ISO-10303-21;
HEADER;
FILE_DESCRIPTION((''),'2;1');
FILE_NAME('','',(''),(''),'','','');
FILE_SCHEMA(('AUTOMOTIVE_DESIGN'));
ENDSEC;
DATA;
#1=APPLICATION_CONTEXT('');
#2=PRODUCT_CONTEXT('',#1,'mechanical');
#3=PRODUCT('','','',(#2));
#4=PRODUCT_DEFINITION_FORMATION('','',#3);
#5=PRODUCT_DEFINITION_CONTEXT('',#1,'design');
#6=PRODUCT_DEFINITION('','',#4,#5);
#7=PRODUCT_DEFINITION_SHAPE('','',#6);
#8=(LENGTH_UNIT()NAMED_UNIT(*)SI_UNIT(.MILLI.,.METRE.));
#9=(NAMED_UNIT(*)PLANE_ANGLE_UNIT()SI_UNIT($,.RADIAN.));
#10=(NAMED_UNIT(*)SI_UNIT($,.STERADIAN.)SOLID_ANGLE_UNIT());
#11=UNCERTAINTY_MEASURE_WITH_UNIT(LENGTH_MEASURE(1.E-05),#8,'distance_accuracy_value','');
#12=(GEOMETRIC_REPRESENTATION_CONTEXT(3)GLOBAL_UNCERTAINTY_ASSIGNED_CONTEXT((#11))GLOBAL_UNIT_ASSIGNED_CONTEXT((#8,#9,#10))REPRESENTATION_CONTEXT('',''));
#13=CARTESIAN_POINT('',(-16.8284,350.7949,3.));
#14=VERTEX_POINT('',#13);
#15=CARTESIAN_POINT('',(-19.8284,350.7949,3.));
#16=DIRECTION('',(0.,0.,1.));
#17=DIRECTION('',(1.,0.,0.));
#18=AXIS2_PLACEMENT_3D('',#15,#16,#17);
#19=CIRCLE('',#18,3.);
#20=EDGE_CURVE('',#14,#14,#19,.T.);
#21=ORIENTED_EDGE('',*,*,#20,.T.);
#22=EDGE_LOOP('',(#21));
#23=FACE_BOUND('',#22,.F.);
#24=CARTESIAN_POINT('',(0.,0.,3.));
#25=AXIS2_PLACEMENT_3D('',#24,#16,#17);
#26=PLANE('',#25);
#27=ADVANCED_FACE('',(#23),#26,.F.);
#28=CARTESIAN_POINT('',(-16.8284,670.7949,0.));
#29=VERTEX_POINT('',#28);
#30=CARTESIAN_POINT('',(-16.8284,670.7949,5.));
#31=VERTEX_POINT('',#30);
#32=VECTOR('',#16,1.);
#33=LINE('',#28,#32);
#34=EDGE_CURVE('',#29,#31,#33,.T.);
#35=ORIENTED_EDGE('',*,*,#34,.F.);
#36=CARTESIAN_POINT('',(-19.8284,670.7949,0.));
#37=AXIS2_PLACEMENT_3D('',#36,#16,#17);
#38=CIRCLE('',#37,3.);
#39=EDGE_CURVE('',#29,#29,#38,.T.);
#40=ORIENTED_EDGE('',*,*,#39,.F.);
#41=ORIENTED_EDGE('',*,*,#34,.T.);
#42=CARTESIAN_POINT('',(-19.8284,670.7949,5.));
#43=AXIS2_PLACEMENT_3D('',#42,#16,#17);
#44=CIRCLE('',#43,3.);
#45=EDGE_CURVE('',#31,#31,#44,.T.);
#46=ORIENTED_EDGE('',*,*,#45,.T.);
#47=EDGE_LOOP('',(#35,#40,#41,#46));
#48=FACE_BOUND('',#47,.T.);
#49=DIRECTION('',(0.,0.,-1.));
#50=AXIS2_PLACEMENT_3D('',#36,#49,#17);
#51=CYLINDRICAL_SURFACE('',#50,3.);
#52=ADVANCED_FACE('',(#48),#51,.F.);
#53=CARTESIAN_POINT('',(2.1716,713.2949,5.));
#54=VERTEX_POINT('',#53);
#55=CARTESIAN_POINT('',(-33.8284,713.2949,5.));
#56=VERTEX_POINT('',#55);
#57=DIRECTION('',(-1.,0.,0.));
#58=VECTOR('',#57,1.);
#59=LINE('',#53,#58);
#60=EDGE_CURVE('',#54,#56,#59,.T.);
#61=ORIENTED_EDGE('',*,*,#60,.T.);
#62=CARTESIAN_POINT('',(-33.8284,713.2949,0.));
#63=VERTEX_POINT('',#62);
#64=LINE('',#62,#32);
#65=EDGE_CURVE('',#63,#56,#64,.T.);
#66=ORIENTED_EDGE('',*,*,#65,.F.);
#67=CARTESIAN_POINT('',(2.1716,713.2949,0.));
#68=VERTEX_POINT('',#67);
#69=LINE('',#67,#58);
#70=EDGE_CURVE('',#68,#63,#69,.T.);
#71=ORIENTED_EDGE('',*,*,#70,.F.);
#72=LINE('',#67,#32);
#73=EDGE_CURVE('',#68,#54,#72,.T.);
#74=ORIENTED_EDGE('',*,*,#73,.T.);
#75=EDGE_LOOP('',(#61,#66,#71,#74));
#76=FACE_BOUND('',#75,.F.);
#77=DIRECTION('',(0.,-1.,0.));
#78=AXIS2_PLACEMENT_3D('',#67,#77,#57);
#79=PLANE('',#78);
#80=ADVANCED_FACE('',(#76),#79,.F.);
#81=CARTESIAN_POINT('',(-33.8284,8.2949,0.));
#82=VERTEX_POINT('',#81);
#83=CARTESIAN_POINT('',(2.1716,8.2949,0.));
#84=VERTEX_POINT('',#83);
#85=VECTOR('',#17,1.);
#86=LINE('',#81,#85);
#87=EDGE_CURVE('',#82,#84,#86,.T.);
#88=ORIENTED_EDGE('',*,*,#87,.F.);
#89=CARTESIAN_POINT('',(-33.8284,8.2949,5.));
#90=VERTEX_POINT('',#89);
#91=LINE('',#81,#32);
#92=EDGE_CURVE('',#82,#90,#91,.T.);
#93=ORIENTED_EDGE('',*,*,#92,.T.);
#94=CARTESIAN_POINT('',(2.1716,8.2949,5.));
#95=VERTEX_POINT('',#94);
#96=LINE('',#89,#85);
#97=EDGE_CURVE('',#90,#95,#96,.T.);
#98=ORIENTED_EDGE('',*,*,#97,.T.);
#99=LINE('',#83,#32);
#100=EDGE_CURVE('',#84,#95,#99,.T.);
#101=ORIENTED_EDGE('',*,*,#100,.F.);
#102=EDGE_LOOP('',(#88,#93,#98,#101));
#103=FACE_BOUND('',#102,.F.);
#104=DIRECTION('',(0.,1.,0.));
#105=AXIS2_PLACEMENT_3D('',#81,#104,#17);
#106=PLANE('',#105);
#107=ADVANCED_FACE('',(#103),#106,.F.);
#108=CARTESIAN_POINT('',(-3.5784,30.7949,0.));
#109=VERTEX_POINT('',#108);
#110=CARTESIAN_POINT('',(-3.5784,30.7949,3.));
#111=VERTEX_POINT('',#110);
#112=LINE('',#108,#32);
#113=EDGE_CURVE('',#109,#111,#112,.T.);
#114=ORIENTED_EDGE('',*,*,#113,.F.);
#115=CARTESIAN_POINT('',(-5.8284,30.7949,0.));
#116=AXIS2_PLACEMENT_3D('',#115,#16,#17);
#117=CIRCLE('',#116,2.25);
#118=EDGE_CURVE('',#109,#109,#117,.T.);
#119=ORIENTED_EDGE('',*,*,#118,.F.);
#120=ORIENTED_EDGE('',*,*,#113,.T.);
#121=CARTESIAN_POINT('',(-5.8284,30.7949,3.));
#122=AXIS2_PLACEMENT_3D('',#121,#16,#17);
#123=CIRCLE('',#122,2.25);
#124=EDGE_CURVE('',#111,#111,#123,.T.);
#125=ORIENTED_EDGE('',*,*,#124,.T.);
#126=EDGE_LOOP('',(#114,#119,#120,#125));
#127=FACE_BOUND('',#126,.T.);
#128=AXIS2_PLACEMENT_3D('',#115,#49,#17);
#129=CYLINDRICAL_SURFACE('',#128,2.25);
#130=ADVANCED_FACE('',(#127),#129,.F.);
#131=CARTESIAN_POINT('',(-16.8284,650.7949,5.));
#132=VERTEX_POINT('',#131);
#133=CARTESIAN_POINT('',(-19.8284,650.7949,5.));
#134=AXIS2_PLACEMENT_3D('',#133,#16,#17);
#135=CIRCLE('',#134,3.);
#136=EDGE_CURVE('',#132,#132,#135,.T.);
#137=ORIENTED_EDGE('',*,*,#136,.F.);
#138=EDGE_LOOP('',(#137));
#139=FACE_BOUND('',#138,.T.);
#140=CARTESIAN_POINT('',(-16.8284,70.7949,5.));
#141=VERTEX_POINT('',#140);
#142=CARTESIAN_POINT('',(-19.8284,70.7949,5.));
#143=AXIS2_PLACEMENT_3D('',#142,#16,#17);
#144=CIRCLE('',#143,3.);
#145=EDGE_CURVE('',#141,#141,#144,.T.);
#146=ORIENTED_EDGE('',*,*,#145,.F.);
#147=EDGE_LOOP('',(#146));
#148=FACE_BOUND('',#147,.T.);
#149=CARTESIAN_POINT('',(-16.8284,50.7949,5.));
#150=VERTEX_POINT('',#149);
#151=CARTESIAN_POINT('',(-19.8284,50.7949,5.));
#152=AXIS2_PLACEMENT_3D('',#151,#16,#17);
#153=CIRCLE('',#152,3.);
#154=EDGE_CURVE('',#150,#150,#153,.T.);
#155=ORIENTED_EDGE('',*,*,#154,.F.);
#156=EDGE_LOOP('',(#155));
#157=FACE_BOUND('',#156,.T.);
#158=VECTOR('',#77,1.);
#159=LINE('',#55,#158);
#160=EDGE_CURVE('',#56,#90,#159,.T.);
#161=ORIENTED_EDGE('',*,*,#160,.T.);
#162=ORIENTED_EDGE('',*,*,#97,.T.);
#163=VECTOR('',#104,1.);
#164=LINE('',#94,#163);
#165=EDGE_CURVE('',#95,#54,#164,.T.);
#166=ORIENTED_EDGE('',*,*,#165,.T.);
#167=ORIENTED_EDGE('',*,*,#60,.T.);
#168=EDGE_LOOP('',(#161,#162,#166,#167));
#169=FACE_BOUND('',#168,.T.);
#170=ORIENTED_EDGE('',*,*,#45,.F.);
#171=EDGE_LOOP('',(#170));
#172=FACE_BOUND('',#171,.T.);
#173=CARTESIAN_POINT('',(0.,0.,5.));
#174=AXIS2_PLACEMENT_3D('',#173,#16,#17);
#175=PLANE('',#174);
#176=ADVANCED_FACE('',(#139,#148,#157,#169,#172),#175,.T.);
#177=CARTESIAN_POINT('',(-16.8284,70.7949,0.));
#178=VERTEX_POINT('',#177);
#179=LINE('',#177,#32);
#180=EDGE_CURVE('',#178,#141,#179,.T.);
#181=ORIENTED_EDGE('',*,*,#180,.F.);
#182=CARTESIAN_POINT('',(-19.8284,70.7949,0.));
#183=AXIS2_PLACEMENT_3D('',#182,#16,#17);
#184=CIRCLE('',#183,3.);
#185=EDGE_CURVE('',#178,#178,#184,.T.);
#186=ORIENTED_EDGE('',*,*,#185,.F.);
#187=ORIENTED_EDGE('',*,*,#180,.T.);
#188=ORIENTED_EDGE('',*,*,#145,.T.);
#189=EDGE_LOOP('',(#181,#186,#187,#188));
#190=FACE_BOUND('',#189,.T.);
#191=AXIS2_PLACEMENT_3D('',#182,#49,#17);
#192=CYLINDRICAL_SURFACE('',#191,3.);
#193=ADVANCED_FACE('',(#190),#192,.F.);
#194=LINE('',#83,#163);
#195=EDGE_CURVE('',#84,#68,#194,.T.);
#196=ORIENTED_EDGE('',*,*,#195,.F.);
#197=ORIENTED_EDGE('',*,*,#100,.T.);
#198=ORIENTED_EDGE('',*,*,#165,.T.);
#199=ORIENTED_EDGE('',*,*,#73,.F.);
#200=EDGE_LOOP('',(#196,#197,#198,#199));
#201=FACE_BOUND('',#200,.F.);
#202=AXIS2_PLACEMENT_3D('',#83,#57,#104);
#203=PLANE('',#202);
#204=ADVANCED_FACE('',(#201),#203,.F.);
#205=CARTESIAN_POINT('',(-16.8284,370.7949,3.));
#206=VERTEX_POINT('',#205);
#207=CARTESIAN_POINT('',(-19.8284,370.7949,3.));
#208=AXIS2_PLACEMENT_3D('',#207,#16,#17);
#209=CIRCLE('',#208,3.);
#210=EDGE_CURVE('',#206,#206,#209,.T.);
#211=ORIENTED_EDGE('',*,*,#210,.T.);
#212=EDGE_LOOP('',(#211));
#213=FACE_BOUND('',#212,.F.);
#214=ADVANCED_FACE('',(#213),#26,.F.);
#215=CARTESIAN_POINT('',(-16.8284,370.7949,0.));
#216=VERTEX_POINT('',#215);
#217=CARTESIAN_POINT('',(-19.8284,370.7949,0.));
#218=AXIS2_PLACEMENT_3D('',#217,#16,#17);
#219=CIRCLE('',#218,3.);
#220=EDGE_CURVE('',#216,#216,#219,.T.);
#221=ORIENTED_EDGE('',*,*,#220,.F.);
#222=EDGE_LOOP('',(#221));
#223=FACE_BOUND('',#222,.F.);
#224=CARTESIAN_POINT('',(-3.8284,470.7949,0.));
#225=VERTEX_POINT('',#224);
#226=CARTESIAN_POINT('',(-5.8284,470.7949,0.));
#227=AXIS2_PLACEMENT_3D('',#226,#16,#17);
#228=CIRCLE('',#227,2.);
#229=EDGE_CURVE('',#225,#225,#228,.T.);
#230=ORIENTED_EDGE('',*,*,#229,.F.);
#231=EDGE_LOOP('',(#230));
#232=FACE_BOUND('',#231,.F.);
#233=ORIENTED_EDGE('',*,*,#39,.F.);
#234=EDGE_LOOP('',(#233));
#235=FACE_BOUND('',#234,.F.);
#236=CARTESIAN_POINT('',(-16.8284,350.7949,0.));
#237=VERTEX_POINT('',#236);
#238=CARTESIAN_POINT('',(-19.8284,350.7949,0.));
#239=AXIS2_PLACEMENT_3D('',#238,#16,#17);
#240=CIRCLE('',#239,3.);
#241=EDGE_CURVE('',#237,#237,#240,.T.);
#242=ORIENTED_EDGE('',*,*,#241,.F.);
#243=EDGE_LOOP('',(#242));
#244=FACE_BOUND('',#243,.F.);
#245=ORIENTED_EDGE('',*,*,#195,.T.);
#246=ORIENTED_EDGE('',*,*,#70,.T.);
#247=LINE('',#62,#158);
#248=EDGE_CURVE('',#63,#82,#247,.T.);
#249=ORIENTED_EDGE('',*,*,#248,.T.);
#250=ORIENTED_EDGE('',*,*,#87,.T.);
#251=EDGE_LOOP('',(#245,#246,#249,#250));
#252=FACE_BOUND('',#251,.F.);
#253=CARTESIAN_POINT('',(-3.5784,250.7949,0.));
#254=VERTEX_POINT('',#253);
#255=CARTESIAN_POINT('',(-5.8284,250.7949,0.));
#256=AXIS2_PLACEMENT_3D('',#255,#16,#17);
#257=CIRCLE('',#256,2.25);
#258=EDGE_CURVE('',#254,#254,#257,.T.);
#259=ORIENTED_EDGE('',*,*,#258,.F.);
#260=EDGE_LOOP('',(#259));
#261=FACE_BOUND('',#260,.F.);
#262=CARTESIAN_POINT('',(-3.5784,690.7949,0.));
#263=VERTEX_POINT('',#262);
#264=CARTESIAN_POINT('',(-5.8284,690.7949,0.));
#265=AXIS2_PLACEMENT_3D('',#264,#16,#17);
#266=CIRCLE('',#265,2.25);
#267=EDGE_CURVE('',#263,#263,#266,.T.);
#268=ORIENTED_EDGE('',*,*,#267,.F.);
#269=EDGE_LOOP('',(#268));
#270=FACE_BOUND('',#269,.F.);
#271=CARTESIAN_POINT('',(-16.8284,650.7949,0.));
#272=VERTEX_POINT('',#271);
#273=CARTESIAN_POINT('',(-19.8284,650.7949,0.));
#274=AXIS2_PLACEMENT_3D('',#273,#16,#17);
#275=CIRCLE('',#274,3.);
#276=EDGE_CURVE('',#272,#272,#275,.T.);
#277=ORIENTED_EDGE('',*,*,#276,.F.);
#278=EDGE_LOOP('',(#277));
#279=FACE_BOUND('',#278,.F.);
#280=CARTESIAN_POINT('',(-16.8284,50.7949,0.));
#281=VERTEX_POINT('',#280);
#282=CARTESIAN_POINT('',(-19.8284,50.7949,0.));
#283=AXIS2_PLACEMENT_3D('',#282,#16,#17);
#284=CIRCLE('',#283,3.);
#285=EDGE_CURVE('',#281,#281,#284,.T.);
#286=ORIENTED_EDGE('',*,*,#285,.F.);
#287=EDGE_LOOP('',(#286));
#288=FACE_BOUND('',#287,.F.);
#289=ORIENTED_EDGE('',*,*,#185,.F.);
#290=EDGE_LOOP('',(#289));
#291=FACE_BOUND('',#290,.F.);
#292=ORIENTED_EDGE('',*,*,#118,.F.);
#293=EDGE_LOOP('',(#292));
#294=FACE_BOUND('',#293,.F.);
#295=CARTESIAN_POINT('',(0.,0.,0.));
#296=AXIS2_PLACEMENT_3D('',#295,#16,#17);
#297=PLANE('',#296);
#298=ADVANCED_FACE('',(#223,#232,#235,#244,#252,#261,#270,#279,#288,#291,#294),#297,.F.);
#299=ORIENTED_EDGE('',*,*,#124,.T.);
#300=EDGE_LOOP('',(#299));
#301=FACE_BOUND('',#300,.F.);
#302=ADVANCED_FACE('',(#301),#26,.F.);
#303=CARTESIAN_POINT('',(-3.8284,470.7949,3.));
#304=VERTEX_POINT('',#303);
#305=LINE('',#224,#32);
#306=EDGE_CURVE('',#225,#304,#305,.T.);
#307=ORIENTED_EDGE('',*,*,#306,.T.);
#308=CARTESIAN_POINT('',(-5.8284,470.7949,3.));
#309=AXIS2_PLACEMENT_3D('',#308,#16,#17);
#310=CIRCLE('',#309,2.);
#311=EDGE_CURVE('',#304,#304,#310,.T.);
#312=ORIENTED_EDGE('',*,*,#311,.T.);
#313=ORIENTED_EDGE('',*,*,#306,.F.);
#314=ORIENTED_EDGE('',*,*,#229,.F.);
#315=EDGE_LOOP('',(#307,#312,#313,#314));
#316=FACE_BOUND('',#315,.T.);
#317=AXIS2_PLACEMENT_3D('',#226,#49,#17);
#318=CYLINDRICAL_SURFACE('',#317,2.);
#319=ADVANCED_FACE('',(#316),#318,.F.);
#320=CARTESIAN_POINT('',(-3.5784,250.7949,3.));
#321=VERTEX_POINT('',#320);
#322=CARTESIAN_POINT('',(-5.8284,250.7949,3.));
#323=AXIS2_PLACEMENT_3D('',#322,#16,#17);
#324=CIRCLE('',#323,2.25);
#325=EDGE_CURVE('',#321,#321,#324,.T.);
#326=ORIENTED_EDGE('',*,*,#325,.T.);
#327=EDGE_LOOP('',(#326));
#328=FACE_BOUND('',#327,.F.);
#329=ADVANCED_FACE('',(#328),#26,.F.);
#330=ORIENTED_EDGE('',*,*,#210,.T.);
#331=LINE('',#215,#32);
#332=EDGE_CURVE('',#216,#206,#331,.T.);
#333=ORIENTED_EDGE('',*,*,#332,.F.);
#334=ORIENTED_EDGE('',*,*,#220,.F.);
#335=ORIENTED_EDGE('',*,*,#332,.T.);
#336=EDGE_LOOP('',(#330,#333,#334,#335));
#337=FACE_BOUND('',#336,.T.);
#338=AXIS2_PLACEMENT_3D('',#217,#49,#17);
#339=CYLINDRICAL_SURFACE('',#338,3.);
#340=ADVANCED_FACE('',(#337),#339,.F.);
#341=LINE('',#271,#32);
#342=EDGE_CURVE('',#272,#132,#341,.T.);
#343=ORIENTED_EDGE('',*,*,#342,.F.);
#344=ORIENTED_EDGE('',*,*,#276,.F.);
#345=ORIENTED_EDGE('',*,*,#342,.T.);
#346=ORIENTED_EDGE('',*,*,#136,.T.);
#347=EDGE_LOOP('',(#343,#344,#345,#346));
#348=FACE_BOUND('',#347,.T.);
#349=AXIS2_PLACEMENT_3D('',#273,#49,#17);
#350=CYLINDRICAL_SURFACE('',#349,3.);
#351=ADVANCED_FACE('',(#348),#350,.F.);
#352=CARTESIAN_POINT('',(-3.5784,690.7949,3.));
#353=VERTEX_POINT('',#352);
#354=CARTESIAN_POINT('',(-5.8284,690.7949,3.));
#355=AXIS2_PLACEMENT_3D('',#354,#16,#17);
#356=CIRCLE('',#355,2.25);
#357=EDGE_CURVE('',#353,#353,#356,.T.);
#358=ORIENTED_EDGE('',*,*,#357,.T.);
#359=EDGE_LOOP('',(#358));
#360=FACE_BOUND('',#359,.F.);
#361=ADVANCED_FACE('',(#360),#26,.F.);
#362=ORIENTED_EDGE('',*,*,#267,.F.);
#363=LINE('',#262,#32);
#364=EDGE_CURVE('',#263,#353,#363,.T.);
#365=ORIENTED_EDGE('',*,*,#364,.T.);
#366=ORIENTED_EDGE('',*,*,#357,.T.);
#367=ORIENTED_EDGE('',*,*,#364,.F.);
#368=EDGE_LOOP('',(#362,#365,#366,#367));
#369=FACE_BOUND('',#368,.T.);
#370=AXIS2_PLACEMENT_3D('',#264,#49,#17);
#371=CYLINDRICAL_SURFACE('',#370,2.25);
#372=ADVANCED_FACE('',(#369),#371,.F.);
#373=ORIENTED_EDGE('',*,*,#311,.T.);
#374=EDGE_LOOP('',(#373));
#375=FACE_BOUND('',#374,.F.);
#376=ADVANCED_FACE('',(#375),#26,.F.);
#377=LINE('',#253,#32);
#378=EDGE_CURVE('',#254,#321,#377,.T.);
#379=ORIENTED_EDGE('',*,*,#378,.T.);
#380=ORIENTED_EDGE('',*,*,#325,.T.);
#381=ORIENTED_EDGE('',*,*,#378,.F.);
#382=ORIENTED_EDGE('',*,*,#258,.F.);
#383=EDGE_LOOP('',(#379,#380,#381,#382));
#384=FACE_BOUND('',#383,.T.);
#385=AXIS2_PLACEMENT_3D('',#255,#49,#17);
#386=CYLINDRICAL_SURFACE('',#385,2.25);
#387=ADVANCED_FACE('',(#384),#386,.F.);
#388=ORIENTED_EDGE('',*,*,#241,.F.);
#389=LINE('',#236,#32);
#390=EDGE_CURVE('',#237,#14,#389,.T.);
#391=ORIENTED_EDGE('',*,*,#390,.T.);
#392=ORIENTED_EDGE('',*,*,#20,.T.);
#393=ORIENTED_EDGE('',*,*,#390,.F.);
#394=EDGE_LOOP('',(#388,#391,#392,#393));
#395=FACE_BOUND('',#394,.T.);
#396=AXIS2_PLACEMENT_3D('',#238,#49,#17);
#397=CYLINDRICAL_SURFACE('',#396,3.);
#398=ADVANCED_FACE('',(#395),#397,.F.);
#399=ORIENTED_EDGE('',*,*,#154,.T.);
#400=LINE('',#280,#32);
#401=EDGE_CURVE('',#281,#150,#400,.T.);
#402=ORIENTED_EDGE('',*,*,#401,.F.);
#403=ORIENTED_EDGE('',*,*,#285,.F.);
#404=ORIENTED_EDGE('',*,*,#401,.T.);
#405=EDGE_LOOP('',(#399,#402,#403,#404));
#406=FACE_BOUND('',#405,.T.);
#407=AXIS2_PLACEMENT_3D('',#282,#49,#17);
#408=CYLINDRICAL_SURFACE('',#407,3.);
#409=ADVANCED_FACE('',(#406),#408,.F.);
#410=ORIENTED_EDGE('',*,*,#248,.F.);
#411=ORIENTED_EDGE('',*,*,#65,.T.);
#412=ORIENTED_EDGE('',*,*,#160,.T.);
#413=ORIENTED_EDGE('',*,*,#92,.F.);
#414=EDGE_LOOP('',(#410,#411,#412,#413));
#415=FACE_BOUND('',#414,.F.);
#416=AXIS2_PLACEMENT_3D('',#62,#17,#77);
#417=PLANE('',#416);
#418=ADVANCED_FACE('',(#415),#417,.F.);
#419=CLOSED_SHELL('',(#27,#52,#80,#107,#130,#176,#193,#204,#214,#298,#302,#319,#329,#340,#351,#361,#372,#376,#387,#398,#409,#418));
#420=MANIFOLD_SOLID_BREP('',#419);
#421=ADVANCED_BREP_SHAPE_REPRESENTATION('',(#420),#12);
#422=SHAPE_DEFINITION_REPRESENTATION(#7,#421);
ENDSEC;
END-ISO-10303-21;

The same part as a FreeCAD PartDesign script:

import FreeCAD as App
import Part
import Sketcher
from FreeCAD import Vector


def add_polygon(sketch, points):
    """Adds a closed chain of lines whose ends are joined by coincident constraints."""
    first, n = sketch.GeometryCount, len(points)
    for a, b in zip(points, points[1:] + points[:1]):
        sketch.addGeometry(Part.LineSegment(App.Vector(*a, 0), App.Vector(*b, 0)), False)
    for i in range(n):
        sketch.addConstraint(Sketcher.Constraint("Coincident", first + i, 2, first + (i + 1) % n, 1))

doc = App.newDocument("Part")
body = doc.addObject("PartDesign::Body", "Body")

# Sketch on XY plane
sketch1 = body.newObject("Sketcher::SketchObject", "Sketch")
sketch1.AttachmentSupport = (doc.getObject("XY_Plane"), [""])
sketch1.MapMode = "FlatFace"
add_polygon(sketch1, [(-33.8, 713.3), (-33.8, 8.3), (2.2, 8.3), (2.2, 713.3)])  # lines 0-3
sketch1.addGeometry(Part.Circle(Vector(-19.8, 50.8, 0), Vector(0, 0, 1), 3), False)  # 4
sketch1.addGeometry(Part.Circle(Vector(-19.8, 70.8, 0), Vector(0, 0, 1), 3), False)  # 5
sketch1.addGeometry(Part.Circle(Vector(-19.8, 650.8, 0), Vector(0, 0, 1), 3), False)  # 6
sketch1.addGeometry(Part.Circle(Vector(-19.8, 670.8, 0), Vector(0, 0, 1), 3), False)  # 7
sketch1.addConstraint(Sketcher.Constraint("Vertical", 0))
sketch1.addConstraint(Sketcher.Constraint("Horizontal", 1))
sketch1.addConstraint(Sketcher.Constraint("Vertical", 2))
sketch1.addConstraint(Sketcher.Constraint("Horizontal", 3))
sketch1.addConstraint(Sketcher.Constraint("Equal", 4, 5))
sketch1.addConstraint(Sketcher.Constraint("Equal", 5, 6))
sketch1.addConstraint(Sketcher.Constraint("Equal", 6, 7))
sketch1.addConstraint(Sketcher.Constraint("Vertical", 4, 3, 5, 3))
sketch1.addConstraint(Sketcher.Constraint("Vertical", 5, 3, 6, 3))
sketch1.addConstraint(Sketcher.Constraint("Vertical", 6, 3, 7, 3))
sketch1.addConstraint(Sketcher.Constraint("Diameter", 4, 6.0))
sketch1.addConstraint(Sketcher.Constraint("DistanceX", 1, 1, 1, 2, 36.0))
sketch1.addConstraint(Sketcher.Constraint("DistanceY", 0, 2, 0, 1, 705.0))
sketch1.addConstraint(Sketcher.Constraint("DistanceY", 4, 3, 5, 3, 20.0))
sketch1.addConstraint(Sketcher.Constraint("DistanceY", 4, 3, 6, 3, 600.0))
sketch1.addConstraint(Sketcher.Constraint("DistanceY", 6, 3, 7, 3, 20.0))
sketch1.addConstraint(Sketcher.Constraint("DistanceX", 0, 2, 4, 3, 14.0))
sketch1.addConstraint(Sketcher.Constraint("DistanceY", 0, 2, 4, 3, 42.5))
sketch1.addConstraint(Sketcher.Constraint("DistanceY", -1, 1, 4, 3, 50.795))
sketch1.addConstraint(Sketcher.Constraint("DistanceX", 4, 3, -1, 1, 19.8284))
pad1 = body.newObject("PartDesign::Pad", "Pad")
pad1.Profile = sketch1
pad1.Length = 5

# Sketch on XY plane
sketch2 = body.newObject("Sketcher::SketchObject", "Sketch001")
sketch2.AttachmentSupport = (doc.getObject("XY_Plane"), [""])
sketch2.MapMode = "FlatFace"
sketch2.addGeometry(Part.Circle(Vector(-19.8, 350.8, 0), Vector(0, 0, 1), 3), False)
sketch2.addConstraint(Sketcher.Constraint("Diameter", 0, 6.0))
sketch2.addConstraint(Sketcher.Constraint("DistanceY", -1, 1, 0, 3, 350.795))
sketch2.addConstraint(Sketcher.Constraint("DistanceX", 0, 3, -1, 1, 19.8284))
pocket1 = body.newObject("PartDesign::Pocket", "Pocket")
pocket1.Profile = sketch2
pocket1.Length = 3
pocket1.Reversed = True

# Sketch on XY plane
sketch3 = body.newObject("Sketcher::SketchObject", "Sketch002")
sketch3.AttachmentSupport = (doc.getObject("XY_Plane"), [""])
sketch3.MapMode = "FlatFace"
sketch3.addGeometry(Part.Circle(Vector(-19.8, 370.8, 0), Vector(0, 0, 1), 3), False)
sketch3.addConstraint(Sketcher.Constraint("Diameter", 0, 6.0))
sketch3.addConstraint(Sketcher.Constraint("DistanceY", -1, 1, 0, 3, 370.795))
sketch3.addConstraint(Sketcher.Constraint("DistanceX", 0, 3, -1, 1, 19.8284))
pocket2 = body.newObject("PartDesign::Pocket", "Pocket001")
pocket2.Profile = sketch3
pocket2.Length = 3
pocket2.Reversed = True

# Sketch on XY plane
sketch4 = body.newObject("Sketcher::SketchObject", "Sketch003")
sketch4.AttachmentSupport = (doc.getObject("XY_Plane"), [""])
sketch4.MapMode = "FlatFace"
sketch4.addGeometry(Part.Circle(Vector(-5.8, 250.8, 0), Vector(0, 0, 1), 2.2), False)
sketch4.addGeometry(Part.Circle(Vector(-5.8, 30.8, 0), Vector(0, 0, 1), 2.2), False)
sketch4.addGeometry(Part.Circle(Vector(-5.8, 690.8, 0), Vector(0, 0, 1), 2.2), False)
sketch4.addGeometry(Part.Circle(Vector(-5.8, 470.8, 0), Vector(0, 0, 1), 2), False)
sketch4.addConstraint(Sketcher.Constraint("Equal", 0, 1))
sketch4.addConstraint(Sketcher.Constraint("Equal", 1, 2))
sketch4.addConstraint(Sketcher.Constraint("Vertical", 0, 3, 1, 3))
sketch4.addConstraint(Sketcher.Constraint("Vertical", 1, 3, 2, 3))
sketch4.addConstraint(Sketcher.Constraint("Vertical", 2, 3, 3, 3))
sketch4.addConstraint(Sketcher.Constraint("Diameter", 3, 4.0))
sketch4.addConstraint(Sketcher.Constraint("Diameter", 0, 4.5))
sketch4.addConstraint(Sketcher.Constraint("DistanceY", 1, 3, 0, 3, 220.0))
sketch4.addConstraint(Sketcher.Constraint("DistanceY", 0, 3, 3, 3, 220.0))
sketch4.addConstraint(Sketcher.Constraint("DistanceY", 3, 3, 2, 3, 220.0))
sketch4.addConstraint(Sketcher.Constraint("DistanceY", -1, 1, 0, 3, 250.795))
sketch4.addConstraint(Sketcher.Constraint("DistanceX", 0, 3, -1, 1, 5.8284))
pocket3 = body.newObject("PartDesign::Pocket", "Pocket002")
pocket3.Profile = sketch4
pocket3.Length = 3
pocket3.Reversed = True

doc.recompute()
